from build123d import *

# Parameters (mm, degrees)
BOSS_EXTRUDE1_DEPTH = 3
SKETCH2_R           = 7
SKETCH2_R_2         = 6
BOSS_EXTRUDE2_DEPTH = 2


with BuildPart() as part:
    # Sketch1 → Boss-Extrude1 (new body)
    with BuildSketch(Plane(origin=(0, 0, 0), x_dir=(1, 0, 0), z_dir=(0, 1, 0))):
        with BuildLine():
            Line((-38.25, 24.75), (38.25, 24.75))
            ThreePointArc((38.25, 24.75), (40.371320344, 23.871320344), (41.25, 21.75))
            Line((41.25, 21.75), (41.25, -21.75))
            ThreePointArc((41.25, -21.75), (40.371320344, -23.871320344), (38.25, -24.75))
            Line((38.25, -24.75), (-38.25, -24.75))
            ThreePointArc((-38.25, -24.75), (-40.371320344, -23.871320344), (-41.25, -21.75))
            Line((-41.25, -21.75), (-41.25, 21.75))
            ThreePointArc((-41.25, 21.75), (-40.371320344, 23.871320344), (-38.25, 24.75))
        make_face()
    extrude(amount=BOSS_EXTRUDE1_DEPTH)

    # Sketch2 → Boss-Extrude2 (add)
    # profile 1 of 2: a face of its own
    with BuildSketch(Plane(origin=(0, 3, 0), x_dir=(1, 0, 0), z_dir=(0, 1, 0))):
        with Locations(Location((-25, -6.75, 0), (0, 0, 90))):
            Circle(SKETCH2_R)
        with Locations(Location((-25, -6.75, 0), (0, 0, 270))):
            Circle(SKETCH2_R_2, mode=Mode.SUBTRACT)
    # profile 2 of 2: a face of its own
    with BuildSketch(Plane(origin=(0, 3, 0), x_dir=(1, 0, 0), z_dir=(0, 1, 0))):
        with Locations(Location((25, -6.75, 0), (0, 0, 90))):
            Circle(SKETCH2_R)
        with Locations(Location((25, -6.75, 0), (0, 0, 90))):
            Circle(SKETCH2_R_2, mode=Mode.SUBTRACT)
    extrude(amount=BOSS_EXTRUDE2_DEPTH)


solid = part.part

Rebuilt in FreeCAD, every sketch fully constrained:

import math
import FreeCAD as App
import Part
import Sketcher

V = App.Vector

doc = App.newDocument("Part")
body = doc.addObject("PartDesign::Body", "Body")

# Sketch on XZ plane
sketch1 = body.newObject("Sketcher::SketchObject", "Sketch")
sketch1.AttachmentSupport = (doc.getObject("XZ_Plane"), [""])
sketch1.MapMode = "FlatFace"
sketch1.addGeometry(Part.LineSegment(V(38.25, -24.75, 0), V(-38.25, -24.75, 0)), False)
sketch1.addGeometry(Part.ArcOfCircle(Part.Circle(V(-38.25, -21.75, 0), V(0, 0, 1), 3), math.radians(180), math.radians(270)), False)
sketch1.addGeometry(Part.LineSegment(V(-41.25, -21.75, 0), V(-41.25, 21.75, 0)), False)
sketch1.addGeometry(Part.ArcOfCircle(Part.Circle(V(-38.25, 21.75, 0), V(0, 0, 1), 3), math.radians(90), math.radians(180)), False)
sketch1.addGeometry(Part.LineSegment(V(-38.25, 24.75, 0), V(38.25, 24.75, 0)), False)
sketch1.addGeometry(Part.ArcOfCircle(Part.Circle(V(38.25, 21.75, 0), V(0, 0, 1), 3), math.radians(0), math.radians(90)), False)
sketch1.addGeometry(Part.LineSegment(V(41.25, 21.75, 0), V(41.25, -21.75, 0)), False)
sketch1.addGeometry(Part.ArcOfCircle(Part.Circle(V(38.25, -21.75, 0), V(0, 0, 1), 3), math.radians(-90), math.radians(0)), False)
sketch1.addConstraint(Sketcher.Constraint("Tangent", 0, 2, 1, 2))
sketch1.addConstraint(Sketcher.Constraint("Tangent", 1, 1, 2, 1))
sketch1.addConstraint(Sketcher.Constraint("Tangent", 2, 2, 3, 2))
sketch1.addConstraint(Sketcher.Constraint("Tangent", 3, 1, 4, 1))
sketch1.addConstraint(Sketcher.Constraint("Tangent", 4, 2, 5, 2))
sketch1.addConstraint(Sketcher.Constraint("Tangent", 5, 1, 6, 1))
sketch1.addConstraint(Sketcher.Constraint("Tangent", 6, 2, 7, 2))
sketch1.addConstraint(Sketcher.Constraint("Tangent", 7, 1, 0, 1))
sketch1.addConstraint(Sketcher.Constraint("Horizontal", 0))
sketch1.addConstraint(Sketcher.Constraint("Vertical", 2))
sketch1.addConstraint(Sketcher.Constraint("Horizontal", 4))
sketch1.addConstraint(Sketcher.Constraint("Vertical", 6))
sketch1.addConstraint(Sketcher.Constraint("Equal", 1, 3))
sketch1.addConstraint(Sketcher.Constraint("Equal", 3, 5))
sketch1.addConstraint(Sketcher.Constraint("Equal", 5, 7))
sketch1.addConstraint(Sketcher.Constraint("Symmetric", 1, 3, 5, 3, -1, 1))
sketch1.addConstraint(Sketcher.Constraint("Radius", 1, 3.0))
sketch1.addConstraint(Sketcher.Constraint("DistanceX", 0, 2, 0, 1, 76.5))
sketch1.addConstraint(Sketcher.Constraint("DistanceY", 2, 1, 2, 2, 43.5))
pad1 = body.newObject("PartDesign::Pad", "Pad")
pad1.Profile = sketch1
pad1.Length = 3
pad1.Reversed = True

# Sketch on XZ plane
sketch2 = body.newObject("Sketcher::SketchObject", "Sketch001")
sketch2.AttachmentSupport = (doc.getObject("XZ_Plane"), [""])
sketch2.MapMode = "FlatFace"
sketch2.AttachmentOffset = App.Placement(V(0, 0, -3), App.Rotation())
sketch2.addGeometry(Part.Circle(V(-25, 6.75, 0), V(0, 0, 1), 7), False)
sketch2.addGeometry(Part.Circle(V(-25, 6.75, 0), V(0, 0, 1), 6), False)
sketch2.addGeometry(Part.Circle(V(25, 6.75, 0), V(0, 0, 1), 7), False)
sketch2.addGeometry(Part.Circle(V(25, 6.75, 0), V(0, 0, 1), 6), False)
sketch2.addConstraint(Sketcher.Constraint("Coincident", 1, 3, 0, 3))
sketch2.addConstraint(Sketcher.Constraint("Coincident", 3, 3, 2, 3))
sketch2.addConstraint(Sketcher.Constraint("Equal", 0, 2))
sketch2.addConstraint(Sketcher.Constraint("Equal", 1, 3))
sketch2.addConstraint(Sketcher.Constraint("Symmetric", 0, 3, 2, 3, -2))
sketch2.addConstraint(Sketcher.Constraint("Diameter", 0, 14.0))
sketch2.addConstraint(Sketcher.Constraint("Diameter", 1, 12.0))
sketch2.addConstraint(Sketcher.Constraint("DistanceX", 0, 3, -1, 1, 25.0))
sketch2.addConstraint(Sketcher.Constraint("DistanceY", -1, 1, 0, 3, 6.75))
pad2 = body.newObject("PartDesign::Pad", "Pad001")
pad2.Profile = sketch2
pad2.Length = 2
pad2.Reversed = True

doc.recompute()
